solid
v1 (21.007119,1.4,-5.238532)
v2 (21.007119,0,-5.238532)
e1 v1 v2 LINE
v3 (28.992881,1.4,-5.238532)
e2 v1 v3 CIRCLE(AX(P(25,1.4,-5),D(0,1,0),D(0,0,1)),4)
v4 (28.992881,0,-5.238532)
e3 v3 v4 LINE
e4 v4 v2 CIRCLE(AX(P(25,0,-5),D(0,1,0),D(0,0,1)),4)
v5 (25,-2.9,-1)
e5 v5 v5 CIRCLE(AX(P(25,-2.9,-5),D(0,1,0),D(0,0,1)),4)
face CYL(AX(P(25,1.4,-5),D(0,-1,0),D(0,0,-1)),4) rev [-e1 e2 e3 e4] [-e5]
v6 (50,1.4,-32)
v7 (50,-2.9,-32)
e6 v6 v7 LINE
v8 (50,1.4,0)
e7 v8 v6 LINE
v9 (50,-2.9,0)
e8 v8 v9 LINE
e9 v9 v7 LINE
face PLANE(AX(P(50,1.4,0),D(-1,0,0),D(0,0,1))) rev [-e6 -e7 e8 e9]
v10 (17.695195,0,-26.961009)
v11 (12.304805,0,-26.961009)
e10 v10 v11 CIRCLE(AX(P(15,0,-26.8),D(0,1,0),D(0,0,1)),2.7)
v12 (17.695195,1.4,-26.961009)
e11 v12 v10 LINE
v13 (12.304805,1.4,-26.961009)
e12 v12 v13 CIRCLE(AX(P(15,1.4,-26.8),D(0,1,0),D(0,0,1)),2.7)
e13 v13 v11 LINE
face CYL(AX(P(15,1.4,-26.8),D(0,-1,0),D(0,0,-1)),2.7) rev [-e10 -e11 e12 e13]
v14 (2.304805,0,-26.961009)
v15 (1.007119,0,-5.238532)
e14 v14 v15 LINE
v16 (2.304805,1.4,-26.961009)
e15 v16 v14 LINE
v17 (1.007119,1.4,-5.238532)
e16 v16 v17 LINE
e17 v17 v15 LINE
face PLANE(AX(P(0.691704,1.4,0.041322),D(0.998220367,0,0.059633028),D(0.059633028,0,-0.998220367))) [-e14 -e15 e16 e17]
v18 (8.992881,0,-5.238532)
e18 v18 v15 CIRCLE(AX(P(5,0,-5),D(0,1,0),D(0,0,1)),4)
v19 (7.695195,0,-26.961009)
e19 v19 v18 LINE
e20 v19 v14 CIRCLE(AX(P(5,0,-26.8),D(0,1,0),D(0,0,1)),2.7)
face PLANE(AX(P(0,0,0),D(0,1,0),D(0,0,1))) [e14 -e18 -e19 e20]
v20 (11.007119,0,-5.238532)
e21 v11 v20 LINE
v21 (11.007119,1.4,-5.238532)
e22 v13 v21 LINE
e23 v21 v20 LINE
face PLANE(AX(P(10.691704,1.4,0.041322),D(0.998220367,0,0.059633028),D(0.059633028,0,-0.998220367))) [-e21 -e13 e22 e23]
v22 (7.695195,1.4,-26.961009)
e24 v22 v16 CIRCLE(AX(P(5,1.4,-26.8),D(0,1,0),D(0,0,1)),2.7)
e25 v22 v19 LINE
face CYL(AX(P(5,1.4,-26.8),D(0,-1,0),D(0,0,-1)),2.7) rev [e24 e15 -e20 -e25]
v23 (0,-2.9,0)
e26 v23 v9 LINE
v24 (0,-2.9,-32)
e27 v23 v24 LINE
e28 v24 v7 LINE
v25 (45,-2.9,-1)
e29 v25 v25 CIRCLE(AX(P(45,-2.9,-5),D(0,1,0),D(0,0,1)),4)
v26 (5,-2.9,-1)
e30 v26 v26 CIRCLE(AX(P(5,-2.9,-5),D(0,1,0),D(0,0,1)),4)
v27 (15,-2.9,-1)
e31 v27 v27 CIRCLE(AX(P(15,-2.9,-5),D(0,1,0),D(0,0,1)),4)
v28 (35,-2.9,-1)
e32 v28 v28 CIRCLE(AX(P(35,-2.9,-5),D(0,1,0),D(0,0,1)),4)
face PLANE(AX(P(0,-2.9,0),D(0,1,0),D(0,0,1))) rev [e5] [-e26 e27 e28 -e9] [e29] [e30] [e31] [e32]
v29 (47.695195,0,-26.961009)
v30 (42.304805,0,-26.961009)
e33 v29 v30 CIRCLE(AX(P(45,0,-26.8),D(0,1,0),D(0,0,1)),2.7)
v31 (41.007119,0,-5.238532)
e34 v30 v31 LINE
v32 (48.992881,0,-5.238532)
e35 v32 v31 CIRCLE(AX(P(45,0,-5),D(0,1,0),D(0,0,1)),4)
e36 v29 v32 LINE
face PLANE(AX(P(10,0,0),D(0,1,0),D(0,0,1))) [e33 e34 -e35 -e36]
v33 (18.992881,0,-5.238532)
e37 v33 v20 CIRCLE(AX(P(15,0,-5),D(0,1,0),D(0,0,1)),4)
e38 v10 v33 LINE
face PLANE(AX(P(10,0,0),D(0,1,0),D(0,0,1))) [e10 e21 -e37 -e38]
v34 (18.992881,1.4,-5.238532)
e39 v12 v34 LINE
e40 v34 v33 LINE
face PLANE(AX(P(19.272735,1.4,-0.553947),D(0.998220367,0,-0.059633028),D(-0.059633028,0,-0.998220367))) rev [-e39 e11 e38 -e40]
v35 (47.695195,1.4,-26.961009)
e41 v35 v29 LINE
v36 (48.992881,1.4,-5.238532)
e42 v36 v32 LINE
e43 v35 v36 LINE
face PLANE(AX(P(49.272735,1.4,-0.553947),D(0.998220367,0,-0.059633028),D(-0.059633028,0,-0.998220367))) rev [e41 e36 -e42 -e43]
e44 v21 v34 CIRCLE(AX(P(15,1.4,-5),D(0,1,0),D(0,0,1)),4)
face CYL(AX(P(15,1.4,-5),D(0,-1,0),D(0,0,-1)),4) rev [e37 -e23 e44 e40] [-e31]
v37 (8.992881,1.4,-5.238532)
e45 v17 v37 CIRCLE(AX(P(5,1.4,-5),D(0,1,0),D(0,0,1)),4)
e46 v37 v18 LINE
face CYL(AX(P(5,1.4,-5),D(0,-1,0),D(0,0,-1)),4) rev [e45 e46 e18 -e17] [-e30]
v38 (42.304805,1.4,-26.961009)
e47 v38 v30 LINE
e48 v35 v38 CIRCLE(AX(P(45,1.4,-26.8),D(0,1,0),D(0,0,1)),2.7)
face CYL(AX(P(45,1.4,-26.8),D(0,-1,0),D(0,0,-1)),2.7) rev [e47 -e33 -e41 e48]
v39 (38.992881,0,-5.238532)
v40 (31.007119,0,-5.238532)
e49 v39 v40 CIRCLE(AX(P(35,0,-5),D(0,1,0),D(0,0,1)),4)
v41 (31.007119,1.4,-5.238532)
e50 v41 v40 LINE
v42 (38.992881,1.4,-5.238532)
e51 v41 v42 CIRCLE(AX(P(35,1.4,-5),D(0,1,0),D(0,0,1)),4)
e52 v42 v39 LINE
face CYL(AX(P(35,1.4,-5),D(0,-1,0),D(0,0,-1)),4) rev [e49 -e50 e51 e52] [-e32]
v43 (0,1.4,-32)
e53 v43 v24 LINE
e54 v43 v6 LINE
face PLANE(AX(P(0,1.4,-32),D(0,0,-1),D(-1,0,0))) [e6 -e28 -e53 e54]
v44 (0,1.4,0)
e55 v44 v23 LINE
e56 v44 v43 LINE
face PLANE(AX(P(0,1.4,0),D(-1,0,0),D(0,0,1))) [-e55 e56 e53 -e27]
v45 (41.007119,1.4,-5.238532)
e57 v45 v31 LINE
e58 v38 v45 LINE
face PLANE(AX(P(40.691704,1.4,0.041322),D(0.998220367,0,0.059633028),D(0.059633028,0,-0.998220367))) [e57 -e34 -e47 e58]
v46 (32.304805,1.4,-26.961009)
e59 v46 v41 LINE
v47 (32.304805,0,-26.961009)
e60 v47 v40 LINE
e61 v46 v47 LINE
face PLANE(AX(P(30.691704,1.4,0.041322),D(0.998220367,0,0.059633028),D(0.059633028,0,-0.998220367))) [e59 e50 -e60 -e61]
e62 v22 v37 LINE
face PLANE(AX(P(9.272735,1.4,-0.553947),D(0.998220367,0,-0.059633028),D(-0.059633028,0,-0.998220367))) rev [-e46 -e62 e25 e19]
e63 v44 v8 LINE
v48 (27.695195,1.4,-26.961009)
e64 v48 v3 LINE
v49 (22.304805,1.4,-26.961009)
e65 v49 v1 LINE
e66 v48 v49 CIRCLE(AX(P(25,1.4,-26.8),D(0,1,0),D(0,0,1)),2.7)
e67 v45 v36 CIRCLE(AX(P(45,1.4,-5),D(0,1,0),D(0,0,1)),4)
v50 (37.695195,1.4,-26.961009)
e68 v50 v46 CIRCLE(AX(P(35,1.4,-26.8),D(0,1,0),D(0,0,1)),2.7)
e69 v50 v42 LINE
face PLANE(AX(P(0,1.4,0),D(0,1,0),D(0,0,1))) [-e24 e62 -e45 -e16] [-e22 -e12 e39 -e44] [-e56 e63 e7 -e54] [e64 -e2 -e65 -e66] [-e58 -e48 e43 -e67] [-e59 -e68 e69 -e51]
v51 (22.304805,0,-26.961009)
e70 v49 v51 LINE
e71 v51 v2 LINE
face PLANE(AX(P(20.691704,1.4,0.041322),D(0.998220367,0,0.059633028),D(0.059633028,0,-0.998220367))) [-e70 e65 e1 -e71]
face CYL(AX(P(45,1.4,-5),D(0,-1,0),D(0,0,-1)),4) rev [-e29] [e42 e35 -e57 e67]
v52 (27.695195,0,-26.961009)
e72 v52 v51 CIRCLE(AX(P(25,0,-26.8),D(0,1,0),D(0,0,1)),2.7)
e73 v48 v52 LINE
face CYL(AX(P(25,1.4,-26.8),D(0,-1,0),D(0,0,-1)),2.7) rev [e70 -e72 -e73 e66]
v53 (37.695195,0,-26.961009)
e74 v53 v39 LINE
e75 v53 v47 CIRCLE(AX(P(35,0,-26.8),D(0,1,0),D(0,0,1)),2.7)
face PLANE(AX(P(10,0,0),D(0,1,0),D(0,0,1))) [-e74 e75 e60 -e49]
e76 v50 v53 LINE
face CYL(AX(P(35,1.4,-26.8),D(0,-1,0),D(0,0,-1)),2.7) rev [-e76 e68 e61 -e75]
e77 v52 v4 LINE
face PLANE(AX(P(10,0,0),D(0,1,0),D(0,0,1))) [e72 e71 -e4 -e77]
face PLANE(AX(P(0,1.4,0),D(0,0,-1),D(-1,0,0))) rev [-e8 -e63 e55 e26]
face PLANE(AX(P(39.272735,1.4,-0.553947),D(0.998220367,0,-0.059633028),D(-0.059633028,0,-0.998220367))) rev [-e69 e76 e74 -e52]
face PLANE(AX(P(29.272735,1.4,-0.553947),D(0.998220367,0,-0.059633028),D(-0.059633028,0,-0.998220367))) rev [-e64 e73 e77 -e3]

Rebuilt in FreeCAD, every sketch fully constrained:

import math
import FreeCAD as App
import Part
import Sketcher
from FreeCAD import Vector
Q = App.Units.Quantity

doc = App.newDocument("Part")
body = doc.addObject("PartDesign::Body", "Body")

sketch1 = body.newObject("Sketcher::SketchObject", "Sketch")
sketch1.AttachmentSupport = (doc.getObject("XZ_Plane"), [""])
sketch1.MapMode = "FlatFace"
sketch1.addGeometry([
    Part.LineSegment(Vector(0, -32, 0), Vector(0, 0, 0)),
    Part.LineSegment(Vector(0, 0, 0), Vector(10, 0, 0)),
    Part.LineSegment(Vector(10, 0, 0), Vector(10, -32, 0)),
    Part.LineSegment(Vector(10, -32, 0), Vector(0, -32, 0)),
    Part.ArcOfCircle(Part.Circle(Vector(5, -5, 0), Vector(0, 0, 1), 4), math.radians(0), math.radians(183)),
    Part.LineSegment(Vector(1.01, -5.24, 0), Vector(2.3, -26.96, 0)),
    Part.ArcOfCircle(Part.Circle(Vector(5, -26.8, 0), Vector(0, 0, 1), 2.7), math.radians(-177), math.radians(-3)),
    Part.LineSegment(Vector(7.7, -26.96, 0), Vector(8.99, -5.24, 0)),
    Part.ArcOfCircle(Part.Circle(Vector(5, -5, 0), Vector(0, 0, 1), 4), math.radians(-3.42), math.radians(0)),
], False)
sketch1.addConstraint([
    Sketcher.Constraint("Coincident", 0, 2, 1, 1),
    Sketcher.Constraint("Coincident", 1, 2, 2, 1),
    Sketcher.Constraint("Coincident", 2, 2, 3, 1),
    Sketcher.Constraint("Coincident", 3, 2, 0, 1),
    Sketcher.Constraint("Tangent", 4, 2, 5, 1),
    Sketcher.Constraint("Tangent", 5, 2, 6, 1),
    Sketcher.Constraint("Tangent", 6, 2, 7, 1),
    Sketcher.Constraint("Tangent", 7, 2, 8, 1),
    Sketcher.Constraint("Tangent", 8, 2, 4, 1),
    Sketcher.Constraint("Vertical", 0),
    Sketcher.Constraint("Horizontal", 1),
    Sketcher.Constraint("Vertical", 2),
    Sketcher.Constraint("Horizontal", 3),
    Sketcher.Constraint("Coincident", 0, 2, -1, 1),
    Sketcher.Constraint("Equal", 4, 8),
    Sketcher.Constraint("Horizontal", 5, 2, 6, 2),
    Sketcher.Constraint("Horizontal", 4, 3, 8, 2),
    Sketcher.Constraint("Radius", 4, Q("4 mm")),
    Sketcher.Constraint("Radius", 6, Q("2.7 mm")),
    Sketcher.Constraint("DistanceX", 1, 1, 1, 2, Q("10 mm")),
    Sketcher.Constraint("DistanceY", 0, 1, 0, 2, Q("32 mm")),
    Sketcher.Constraint("DistanceX", -1, 1, 4, 3, Q("5 mm")),
    Sketcher.Constraint("DistanceY", 4, 3, -1, 1, Q("5 mm")),
    Sketcher.Constraint("DistanceY", 6, 3, -1, 1, Q("26.8 mm")),
])
pad1 = body.newObject("PartDesign::Pad", "Pad")
pad1.Profile = sketch1
pad1.Length = 1.4
pad1.Reversed = True

sketch2 = body.newObject("Sketcher::SketchObject", "Sketch001")
sketch2.AttachmentSupport = (doc.getObject("XZ_Plane"), [""])
sketch2.MapMode = "FlatFace"
sketch2.AttachmentOffset = App.Placement(Vector(0, 0, 2.9), App.Rotation())
sketch2.addGeometry([
    Part.LineSegment(Vector(0, -32, 0), Vector(0, 0, 0)),
    Part.LineSegment(Vector(0, 0, 0), Vector(10, 0, 0)),
    Part.LineSegment(Vector(10, 0, 0), Vector(10, -32, 0)),
    Part.LineSegment(Vector(10, -32, 0), Vector(0, -32, 0)),
    Part.ArcOfCircle(Part.Circle(Vector(5, -5, 0), Vector(0, 0, 1), 4), math.radians(0), math.radians(183)),
    Part.ArcOfCircle(Part.Circle(Vector(5, -5, 0), Vector(0, 0, 1), 4), math.radians(-177), math.radians(-3)),
    Part.ArcOfCircle(Part.Circle(Vector(5, -5, 0), Vector(0, 0, 1), 4), math.radians(-3.42), math.radians(0)),
], False)
sketch2.addConstraint([
    Sketcher.Constraint("Coincident", 0, 2, 1, 1),
    Sketcher.Constraint("Coincident", 1, 2, 2, 1),
    Sketcher.Constraint("Coincident", 2, 2, 3, 1),
    Sketcher.Constraint("Coincident", 3, 2, 0, 1),
    Sketcher.Constraint("Tangent", 4, 2, 5, 1),
    Sketcher.Constraint("Tangent", 5, 2, 6, 1),
    Sketcher.Constraint("Tangent", 6, 2, 4, 1),
    Sketcher.Constraint("Vertical", 0),
    Sketcher.Constraint("Horizontal", 1),
    Sketcher.Constraint("Vertical", 2),
    Sketcher.Constraint("Horizontal", 3),
    Sketcher.Constraint("Coincident", 0, 2, -1, 1),
    Sketcher.Constraint("Horizontal", 4, 2, 5, 2),
    Sketcher.Constraint("Horizontal", 5, 3, 6, 2),
    Sketcher.Constraint("Radius", 4, Q("4 mm")),
    Sketcher.Constraint("DistanceX", 1, 1, 1, 2, Q("10 mm")),
    Sketcher.Constraint("DistanceY", 0, 1, 0, 2, Q("32 mm")),
    Sketcher.Constraint("DistanceX", -1, 1, 4, 3, Q("5 mm")),
    Sketcher.Constraint("DistanceY", 4, 3, -1, 1, Q("5 mm")),
    Sketcher.Constraint("DistanceX", -1, 1, 4, 2, Q("1.007119 mm")),
])
pad2 = body.newObject("PartDesign::Pad", "Pad001")
pad2.Profile = sketch2
pad2.Length = 2.9
pad2.Reversed = True
doc.recompute()

linearpattern = body.newObject("PartDesign::LinearPattern", "LinearPattern")
linearpattern.Originals = [pad1, pad2]
linearpattern.Direction = (doc.getObject("X_Axis"), [""])
linearpattern.Mode = "offset"
linearpattern.Offset = 10
linearpattern.Occurrences = 5
body.Tip = linearpattern

doc.recompute()
